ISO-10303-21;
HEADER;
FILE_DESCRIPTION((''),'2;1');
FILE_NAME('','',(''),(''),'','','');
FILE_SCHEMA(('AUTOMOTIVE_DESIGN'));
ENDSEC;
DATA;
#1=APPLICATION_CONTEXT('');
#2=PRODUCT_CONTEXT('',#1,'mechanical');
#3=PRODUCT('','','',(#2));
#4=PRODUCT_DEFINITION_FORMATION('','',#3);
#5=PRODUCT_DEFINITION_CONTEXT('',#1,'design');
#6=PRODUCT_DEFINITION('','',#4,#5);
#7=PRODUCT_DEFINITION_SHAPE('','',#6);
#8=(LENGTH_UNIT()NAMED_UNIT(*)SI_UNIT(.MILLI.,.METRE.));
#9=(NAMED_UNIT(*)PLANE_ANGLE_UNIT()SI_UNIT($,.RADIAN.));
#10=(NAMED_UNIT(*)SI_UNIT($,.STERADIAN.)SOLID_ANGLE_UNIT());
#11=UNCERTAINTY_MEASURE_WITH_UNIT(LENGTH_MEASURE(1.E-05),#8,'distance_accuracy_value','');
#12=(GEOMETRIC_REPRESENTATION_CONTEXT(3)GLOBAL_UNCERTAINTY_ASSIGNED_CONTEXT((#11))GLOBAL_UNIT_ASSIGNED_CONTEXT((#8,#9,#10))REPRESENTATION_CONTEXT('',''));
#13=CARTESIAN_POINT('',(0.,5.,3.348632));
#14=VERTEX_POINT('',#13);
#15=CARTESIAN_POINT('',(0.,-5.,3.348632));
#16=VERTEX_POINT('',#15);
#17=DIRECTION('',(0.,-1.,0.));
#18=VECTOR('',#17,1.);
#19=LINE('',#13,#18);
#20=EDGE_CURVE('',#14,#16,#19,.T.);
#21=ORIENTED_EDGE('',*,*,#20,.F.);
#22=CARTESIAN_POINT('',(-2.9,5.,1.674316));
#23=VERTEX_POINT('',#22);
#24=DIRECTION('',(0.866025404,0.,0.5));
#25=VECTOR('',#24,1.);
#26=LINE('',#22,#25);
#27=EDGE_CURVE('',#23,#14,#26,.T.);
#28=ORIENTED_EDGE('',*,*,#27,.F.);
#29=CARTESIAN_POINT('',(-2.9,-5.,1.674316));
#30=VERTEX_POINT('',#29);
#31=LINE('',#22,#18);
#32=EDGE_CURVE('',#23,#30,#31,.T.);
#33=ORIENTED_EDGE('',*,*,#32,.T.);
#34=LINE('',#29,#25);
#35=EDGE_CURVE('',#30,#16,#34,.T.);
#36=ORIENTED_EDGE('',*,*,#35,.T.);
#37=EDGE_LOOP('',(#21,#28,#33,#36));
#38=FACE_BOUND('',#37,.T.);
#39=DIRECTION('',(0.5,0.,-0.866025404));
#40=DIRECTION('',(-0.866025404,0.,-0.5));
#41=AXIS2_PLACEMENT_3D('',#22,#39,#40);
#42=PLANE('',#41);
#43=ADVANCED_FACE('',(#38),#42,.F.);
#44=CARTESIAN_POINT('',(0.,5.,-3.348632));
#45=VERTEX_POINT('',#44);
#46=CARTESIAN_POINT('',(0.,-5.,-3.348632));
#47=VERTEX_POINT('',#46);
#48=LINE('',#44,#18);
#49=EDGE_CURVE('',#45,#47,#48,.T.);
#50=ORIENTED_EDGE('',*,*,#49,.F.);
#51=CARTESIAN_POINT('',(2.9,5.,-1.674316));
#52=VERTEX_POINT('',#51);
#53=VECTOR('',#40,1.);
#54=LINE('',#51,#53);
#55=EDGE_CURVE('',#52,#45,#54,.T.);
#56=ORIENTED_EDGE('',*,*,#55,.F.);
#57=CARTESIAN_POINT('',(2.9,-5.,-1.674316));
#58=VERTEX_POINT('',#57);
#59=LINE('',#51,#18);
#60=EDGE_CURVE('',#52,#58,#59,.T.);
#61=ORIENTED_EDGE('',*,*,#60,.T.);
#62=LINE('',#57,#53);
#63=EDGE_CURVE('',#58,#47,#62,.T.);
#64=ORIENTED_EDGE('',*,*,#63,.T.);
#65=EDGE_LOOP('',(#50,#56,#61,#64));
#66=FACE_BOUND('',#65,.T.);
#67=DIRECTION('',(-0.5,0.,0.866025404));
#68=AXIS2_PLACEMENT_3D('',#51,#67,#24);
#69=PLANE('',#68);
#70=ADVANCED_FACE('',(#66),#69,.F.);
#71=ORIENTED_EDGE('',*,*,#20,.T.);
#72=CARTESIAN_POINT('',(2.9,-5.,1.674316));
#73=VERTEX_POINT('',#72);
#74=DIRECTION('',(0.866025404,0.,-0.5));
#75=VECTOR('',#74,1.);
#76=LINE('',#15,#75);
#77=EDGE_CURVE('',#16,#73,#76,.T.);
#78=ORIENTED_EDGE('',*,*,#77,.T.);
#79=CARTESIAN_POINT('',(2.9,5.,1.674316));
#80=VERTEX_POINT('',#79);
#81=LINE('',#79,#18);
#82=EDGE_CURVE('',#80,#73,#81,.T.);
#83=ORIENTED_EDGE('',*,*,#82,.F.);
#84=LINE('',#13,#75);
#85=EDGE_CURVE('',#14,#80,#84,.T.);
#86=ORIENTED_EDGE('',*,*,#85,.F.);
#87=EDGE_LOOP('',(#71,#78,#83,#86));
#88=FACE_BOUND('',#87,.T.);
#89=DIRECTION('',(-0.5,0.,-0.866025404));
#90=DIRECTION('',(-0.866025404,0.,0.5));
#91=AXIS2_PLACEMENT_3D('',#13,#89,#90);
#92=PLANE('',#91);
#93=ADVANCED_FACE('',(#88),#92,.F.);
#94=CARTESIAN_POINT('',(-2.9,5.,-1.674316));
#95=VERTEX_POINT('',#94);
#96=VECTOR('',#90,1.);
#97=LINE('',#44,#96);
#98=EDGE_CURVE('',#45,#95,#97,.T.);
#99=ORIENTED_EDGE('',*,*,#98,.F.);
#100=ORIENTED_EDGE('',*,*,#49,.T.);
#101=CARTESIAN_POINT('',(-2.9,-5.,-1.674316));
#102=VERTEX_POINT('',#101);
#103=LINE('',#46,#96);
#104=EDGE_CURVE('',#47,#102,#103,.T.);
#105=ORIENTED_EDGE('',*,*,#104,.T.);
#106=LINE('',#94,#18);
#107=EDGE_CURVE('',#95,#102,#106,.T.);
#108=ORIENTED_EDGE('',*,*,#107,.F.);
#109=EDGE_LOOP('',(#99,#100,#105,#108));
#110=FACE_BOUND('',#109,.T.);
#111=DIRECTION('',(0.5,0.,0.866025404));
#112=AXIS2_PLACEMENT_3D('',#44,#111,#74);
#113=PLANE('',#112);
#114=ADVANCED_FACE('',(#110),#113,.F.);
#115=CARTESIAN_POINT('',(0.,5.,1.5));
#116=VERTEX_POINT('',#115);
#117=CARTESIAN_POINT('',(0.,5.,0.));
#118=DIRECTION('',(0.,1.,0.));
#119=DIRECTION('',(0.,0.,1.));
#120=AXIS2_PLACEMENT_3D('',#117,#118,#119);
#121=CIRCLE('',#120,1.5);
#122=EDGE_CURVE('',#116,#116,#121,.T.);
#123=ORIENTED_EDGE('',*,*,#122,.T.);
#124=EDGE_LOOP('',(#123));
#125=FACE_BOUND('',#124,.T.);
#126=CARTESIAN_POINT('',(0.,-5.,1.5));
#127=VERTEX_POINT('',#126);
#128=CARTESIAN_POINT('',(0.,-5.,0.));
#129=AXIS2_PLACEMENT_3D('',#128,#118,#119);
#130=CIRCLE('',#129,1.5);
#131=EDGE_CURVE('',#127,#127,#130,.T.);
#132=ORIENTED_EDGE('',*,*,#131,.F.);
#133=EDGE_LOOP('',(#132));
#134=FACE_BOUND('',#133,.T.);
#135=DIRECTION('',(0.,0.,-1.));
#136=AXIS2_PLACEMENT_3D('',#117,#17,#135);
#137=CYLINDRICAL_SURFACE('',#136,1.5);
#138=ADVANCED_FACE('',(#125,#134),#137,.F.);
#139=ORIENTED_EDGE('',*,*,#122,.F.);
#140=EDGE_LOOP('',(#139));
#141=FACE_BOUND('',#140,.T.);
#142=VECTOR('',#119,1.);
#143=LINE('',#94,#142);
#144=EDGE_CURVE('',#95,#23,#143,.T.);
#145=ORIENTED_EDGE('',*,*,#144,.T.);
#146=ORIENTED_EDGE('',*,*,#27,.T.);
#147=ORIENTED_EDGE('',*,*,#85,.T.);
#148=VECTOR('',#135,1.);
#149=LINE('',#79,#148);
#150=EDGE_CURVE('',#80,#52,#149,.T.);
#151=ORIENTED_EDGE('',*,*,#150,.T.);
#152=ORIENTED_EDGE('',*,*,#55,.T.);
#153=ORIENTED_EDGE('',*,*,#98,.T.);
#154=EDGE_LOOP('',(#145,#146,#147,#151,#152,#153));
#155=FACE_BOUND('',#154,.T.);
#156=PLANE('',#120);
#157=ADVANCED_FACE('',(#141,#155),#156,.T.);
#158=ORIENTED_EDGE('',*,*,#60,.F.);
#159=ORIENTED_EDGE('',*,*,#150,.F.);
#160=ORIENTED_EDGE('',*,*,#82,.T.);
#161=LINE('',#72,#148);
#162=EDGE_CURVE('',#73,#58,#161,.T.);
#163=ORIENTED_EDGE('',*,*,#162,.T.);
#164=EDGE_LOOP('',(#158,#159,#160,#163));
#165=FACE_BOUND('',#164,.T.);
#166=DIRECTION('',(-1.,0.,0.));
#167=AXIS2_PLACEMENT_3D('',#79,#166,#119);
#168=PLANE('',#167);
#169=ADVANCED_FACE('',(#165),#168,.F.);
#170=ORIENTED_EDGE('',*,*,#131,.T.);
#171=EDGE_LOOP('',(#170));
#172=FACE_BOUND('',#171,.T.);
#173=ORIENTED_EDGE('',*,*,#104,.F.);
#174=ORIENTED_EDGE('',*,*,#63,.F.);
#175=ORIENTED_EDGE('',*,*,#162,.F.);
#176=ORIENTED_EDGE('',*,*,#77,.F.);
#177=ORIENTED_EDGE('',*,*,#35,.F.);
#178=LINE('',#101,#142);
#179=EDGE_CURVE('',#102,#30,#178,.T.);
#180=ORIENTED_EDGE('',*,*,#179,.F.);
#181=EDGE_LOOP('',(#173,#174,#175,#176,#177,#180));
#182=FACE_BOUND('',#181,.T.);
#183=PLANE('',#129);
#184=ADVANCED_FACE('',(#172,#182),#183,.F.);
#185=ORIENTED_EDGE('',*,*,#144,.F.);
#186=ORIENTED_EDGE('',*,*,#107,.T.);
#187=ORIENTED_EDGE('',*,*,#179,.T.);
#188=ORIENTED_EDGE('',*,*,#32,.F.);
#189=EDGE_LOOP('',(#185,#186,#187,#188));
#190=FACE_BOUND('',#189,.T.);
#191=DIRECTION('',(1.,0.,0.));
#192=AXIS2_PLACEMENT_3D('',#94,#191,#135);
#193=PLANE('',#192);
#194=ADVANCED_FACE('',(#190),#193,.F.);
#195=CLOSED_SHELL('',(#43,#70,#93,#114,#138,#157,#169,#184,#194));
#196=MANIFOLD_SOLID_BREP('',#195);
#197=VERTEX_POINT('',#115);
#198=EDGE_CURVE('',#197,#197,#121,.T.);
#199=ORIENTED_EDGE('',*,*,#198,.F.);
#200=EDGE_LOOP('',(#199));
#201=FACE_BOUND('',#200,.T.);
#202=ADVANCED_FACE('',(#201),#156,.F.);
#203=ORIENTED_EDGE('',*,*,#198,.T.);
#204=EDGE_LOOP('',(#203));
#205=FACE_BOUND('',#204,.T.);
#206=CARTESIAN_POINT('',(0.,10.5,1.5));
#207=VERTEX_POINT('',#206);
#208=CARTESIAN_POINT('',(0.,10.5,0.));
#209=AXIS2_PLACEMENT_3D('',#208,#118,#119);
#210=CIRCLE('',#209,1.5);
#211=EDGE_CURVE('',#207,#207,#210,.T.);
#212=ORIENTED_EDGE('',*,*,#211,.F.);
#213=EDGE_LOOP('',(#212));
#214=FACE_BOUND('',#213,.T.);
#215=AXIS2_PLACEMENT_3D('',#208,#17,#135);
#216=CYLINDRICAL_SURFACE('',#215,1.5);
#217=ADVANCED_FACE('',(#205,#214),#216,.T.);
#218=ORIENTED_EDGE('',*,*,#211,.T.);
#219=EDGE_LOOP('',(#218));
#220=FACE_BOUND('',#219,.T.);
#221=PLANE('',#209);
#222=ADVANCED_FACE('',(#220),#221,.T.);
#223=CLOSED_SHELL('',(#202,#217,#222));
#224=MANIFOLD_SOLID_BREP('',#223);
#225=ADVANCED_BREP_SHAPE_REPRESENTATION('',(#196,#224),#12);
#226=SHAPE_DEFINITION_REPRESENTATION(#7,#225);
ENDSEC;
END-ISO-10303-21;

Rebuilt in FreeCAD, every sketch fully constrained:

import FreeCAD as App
import Part
import Sketcher
from FreeCAD import Vector
Q = App.Units.Quantity

doc = App.newDocument("Part")
body = doc.addObject("PartDesign::Body", "Body")

sketch1 = body.newObject("Sketcher::SketchObject", "Sketch")
sketch1.AttachmentSupport = (doc.getObject("XZ_Plane"), [""])
sketch1.MapMode = "FlatFace"
sketch1.addGeometry([
    Part.LineSegment(Vector(0, 3.348632, 0), Vector(2.9, 1.674316, 0)),
    Part.LineSegment(Vector(2.9, 1.674316, 0), Vector(2.9, -1.674316, 0)),
    Part.LineSegment(Vector(2.9, -1.674316, 0), Vector(0, -3.348632, 0)),
    Part.LineSegment(Vector(0, -3.348632, 0), Vector(-2.9, -1.674316, 0)),
    Part.LineSegment(Vector(-2.9, -1.674316, 0), Vector(-2.9, 1.674316, 0)),
    Part.LineSegment(Vector(-2.9, 1.674316, 0), Vector(0, 3.348632, 0)),
    Part.Circle(Vector(0, 0, 0), Vector(0, 0, 1), 1.5),
], False)
sketch1.addConstraint([
    Sketcher.Constraint("Coincident", 0, 2, 1, 1),
    Sketcher.Constraint("Coincident", 1, 2, 2, 1),
    Sketcher.Constraint("Coincident", 2, 2, 3, 1),
    Sketcher.Constraint("Coincident", 3, 2, 4, 1),
    Sketcher.Constraint("Coincident", 4, 2, 5, 1),
    Sketcher.Constraint("Coincident", 5, 2, 0, 1),
    Sketcher.Constraint("Vertical", 1),
    Sketcher.Constraint("Vertical", 4),
    Sketcher.Constraint("Coincident", 6, 3, -1, 1),
    Sketcher.Constraint("Symmetric", 0, 2, 3, 2, -1, 1),
    Sketcher.Constraint("Symmetric", 2, 2, 5, 2, -1, 1),
    Sketcher.Constraint("PointOnObject", 2, 2, -2),
    Sketcher.Constraint("Parallel", 2, 5),
    Sketcher.Constraint("Horizontal", 1, 2, 3, 2),
    Sketcher.Constraint("Diameter", 6, 3.0),
    Sketcher.Constraint("Angle", 0, Q("-30 deg")),
    Sketcher.Constraint("DistanceX", -1, 1, 0, 2, 2.9),
    Sketcher.Constraint("DistanceY", 1, 2, 1, 1, 3.348632),
])
pad1 = body.newObject("PartDesign::Pad", "Pad")
pad1.Profile = sketch1
pad1.Length = 10
pad1.Midplane = True
body2 = doc.addObject("PartDesign::Body", "Body001")

sketch2 = body2.newObject("Sketcher::SketchObject", "Sketch001")
sketch2.AttachmentSupport = (doc.getObject("XZ_Plane001"), [""])
sketch2.MapMode = "FlatFace"
sketch2.AttachmentOffset = App.Placement(Vector(0, 0, -5), App.Rotation())
sketch2.addGeometry(Part.Circle(Vector(0, 0, 0), Vector(0, 0, 1), 1.5), False)
sketch2.addConstraint([
    Sketcher.Constraint("Coincident", 0, 3, -1, 1),
    Sketcher.Constraint("Diameter", 0, 3.0),
])
pad2 = body2.newObject("PartDesign::Pad", "Pad001")
pad2.Profile = sketch2
pad2.Length = 5.5
pad2.Reversed = True

doc.recompute()
